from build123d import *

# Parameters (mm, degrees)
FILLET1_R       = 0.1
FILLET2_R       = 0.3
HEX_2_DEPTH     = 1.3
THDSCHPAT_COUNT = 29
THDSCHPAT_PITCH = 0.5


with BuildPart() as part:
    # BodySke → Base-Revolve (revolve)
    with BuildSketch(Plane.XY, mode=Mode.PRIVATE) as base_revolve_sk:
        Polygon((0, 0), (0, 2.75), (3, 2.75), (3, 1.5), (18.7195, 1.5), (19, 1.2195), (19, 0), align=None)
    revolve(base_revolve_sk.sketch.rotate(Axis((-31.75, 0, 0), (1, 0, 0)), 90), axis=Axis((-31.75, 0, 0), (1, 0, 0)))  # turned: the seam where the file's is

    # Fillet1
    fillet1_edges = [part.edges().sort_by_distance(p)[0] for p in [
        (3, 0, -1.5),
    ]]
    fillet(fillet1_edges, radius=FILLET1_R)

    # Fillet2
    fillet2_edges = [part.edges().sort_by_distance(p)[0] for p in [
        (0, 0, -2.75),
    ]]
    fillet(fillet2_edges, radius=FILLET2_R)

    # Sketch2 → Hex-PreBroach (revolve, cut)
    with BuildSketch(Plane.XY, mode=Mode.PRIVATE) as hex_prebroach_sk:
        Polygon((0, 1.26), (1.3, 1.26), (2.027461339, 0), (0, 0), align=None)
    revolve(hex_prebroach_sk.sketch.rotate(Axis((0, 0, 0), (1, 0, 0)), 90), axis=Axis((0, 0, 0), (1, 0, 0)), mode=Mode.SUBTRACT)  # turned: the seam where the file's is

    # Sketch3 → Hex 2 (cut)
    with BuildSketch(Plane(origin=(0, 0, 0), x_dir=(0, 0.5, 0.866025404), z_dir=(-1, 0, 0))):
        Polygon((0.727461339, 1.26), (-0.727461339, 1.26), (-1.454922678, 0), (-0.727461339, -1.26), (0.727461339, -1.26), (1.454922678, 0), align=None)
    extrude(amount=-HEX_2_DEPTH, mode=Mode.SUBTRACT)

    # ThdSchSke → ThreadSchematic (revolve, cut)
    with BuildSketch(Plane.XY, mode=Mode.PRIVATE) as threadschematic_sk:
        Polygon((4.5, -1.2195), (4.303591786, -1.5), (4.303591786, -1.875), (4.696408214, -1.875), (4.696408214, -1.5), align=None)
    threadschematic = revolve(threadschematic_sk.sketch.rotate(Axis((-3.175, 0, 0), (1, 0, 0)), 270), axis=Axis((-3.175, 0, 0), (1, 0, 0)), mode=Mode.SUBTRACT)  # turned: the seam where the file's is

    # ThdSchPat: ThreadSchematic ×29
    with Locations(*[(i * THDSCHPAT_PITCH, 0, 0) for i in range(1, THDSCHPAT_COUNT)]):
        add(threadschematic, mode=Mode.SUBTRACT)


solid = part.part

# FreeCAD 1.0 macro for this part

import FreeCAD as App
import Part
import Sketcher
from FreeCAD import Vector
Q = App.Units.Quantity


def edges_at(feature, points):
    """Names of the edges that pass closest to the given points."""
    edges = feature.Shape.Edges
    near = lambda p: min(range(len(edges)), key=lambda i: edges[i].distToShape(Part.Vertex(*p))[0])
    return sorted({f"Edge{near(p) + 1}" for p in points})

doc = App.newDocument("Part")
params = doc.addObject("Spreadsheet::Sheet", "Params")
for row, (alias, value) in enumerate([
    ("sketch1_width", "19 mm"),
    ("sketch1_width2", "3 mm"),
    ("sketch1_height", "2.75 mm"),
    ("sketch1_height2", "1.25 mm"),
    ("revolution_angle", "360 deg"),
    ("fillet_radius", "0.1 mm"),
    ("fillet2_radius", "0.3 mm"),
    ("sketch2_width", "1.3 mm"),
    ("sketch2_height", "1.26 mm"),
    ("groove_angle", "360 deg"),
    ("pocket1_length", "1.3 mm"),
    ("groove2_angle", "360 deg"),
    ("linearpattern_pitch", "0.5 mm"),
], start=1):
    params.set(f"A{row}", alias)
    params.set(f"B{row}", "=" + value)
    params.setAlias(f"B{row}", alias)

body = doc.addObject("PartDesign::Body", "Body")

# Sketch on XY plane
sketch1 = body.newObject("Sketcher::SketchObject", "Sketch")
sketch1.AttachmentSupport = (doc.getObject("XY_Plane"), [""])
sketch1.MapMode = "FlatFace"
sketch1.addGeometry([
    Part.LineSegment(Vector(0, 2.75, 0), Vector(0, 0, 0)),  # 0
    Part.LineSegment(Vector(0, 0, 0), Vector(19, 0, 0)),  # 1
    Part.LineSegment(Vector(19, 0, 0), Vector(19, 1.22, 0)),  # 2
    Part.LineSegment(Vector(19, 1.22, 0), Vector(18.72, 1.5, 0)),  # 3
    Part.LineSegment(Vector(18.72, 1.5, 0), Vector(3, 1.5, 0)),  # 4
    Part.LineSegment(Vector(3, 1.5, 0), Vector(3, 2.75, 0)),  # 5
    Part.LineSegment(Vector(3, 2.75, 0), Vector(0, 2.75, 0)),  # 6
], False)
sketch1.addConstraint([
    Sketcher.Constraint("Coincident", 0, 2, 1, 1),
    Sketcher.Constraint("Coincident", 1, 2, 2, 1),
    Sketcher.Constraint("Coincident", 2, 2, 3, 1),
    Sketcher.Constraint("Coincident", 3, 2, 4, 1),
    Sketcher.Constraint("Coincident", 4, 2, 5, 1),
    Sketcher.Constraint("Coincident", 5, 2, 6, 1),
    Sketcher.Constraint("Coincident", 6, 2, 0, 1),
    Sketcher.Constraint("Vertical", 0),
    Sketcher.Constraint("Horizontal", 1),
    Sketcher.Constraint("Vertical", 2),
    Sketcher.Constraint("Horizontal", 4),
    Sketcher.Constraint("Vertical", 5),
    Sketcher.Constraint("Horizontal", 6),
    Sketcher.Constraint("Coincident", 0, 2, -1, 1),
    Sketcher.Constraint("DistanceX", 1, 1, 1, 2, 19.0),
    Sketcher.Constraint("DistanceX", 6, 2, 6, 1, 3.0),
    Sketcher.Constraint("Angle", 3, Q("135 deg")),
    Sketcher.Constraint("DistanceY", 0, 2, 0, 1, 2.75),
    Sketcher.Constraint("DistanceY", 5, 1, 5, 2, 1.25),
    Sketcher.Constraint("DistanceX", 4, 2, 4, 1, 15.7195),
])
sketch1.setExpression("Constraints[14]", "Params.sketch1_width")
sketch1.setExpression("Constraints[15]", "Params.sketch1_width2")
sketch1.setExpression("Constraints[17]", "Params.sketch1_height")
sketch1.setExpression("Constraints[18]", "Params.sketch1_height2")
revolution = body.newObject("PartDesign::Revolution", "Revolution")
revolution.Profile = sketch1
revolution.ReferenceAxis = (sketch1, ["H_Axis"])
revolution.setExpression("Angle", "Params.revolution_angle")
doc.recompute()

fillet = body.newObject("PartDesign::Fillet", "Fillet")
fillet.Base = (revolution, edges_at(revolution, [(3, 0, -1.5)]))
fillet.setExpression("Radius", "Params.fillet_radius")
doc.recompute()

fillet2 = body.newObject("PartDesign::Fillet", "Fillet001")
fillet2.Base = (fillet, edges_at(fillet, [(0, 0, -2.75)]))
fillet2.setExpression("Radius", "Params.fillet2_radius")

# Sketch on XY plane
sketch2 = body.newObject("Sketcher::SketchObject", "Sketch001")
sketch2.AttachmentSupport = (doc.getObject("XY_Plane"), [""])
sketch2.MapMode = "FlatFace"
sketch2.addGeometry([
    Part.LineSegment(Vector(1.3, 1.3, 0), Vector(0, 1.3, 0)),
    Part.LineSegment(Vector(0, 1.3, 0), Vector(0, 0, 0)),
    Part.LineSegment(Vector(0, 0, 0), Vector(2, 0, 0)),
    Part.LineSegment(Vector(2, 0, 0), Vector(1.3, 1.3, 0)),
], False)
sketch2.addConstraint([
    Sketcher.Constraint("Coincident", 0, 2, 1, 1),
    Sketcher.Constraint("Coincident", 1, 2, 2, 1),
    Sketcher.Constraint("Coincident", 2, 2, 3, 1),
    Sketcher.Constraint("Coincident", 3, 2, 0, 1),
    Sketcher.Constraint("Horizontal", 0),
    Sketcher.Constraint("Vertical", 1),
    Sketcher.Constraint("Horizontal", 2),
    Sketcher.Constraint("Coincident", 1, 2, -1, 1),
    Sketcher.Constraint("Angle", 3, Q("120 deg")),
    Sketcher.Constraint("DistanceX", 0, 2, 0, 1, 1.3),
    Sketcher.Constraint("DistanceY", 1, 2, 1, 1, 1.26),
])
sketch2.setExpression("Constraints[9]", "Params.sketch2_width")
sketch2.setExpression("Constraints[10]", "Params.sketch2_height")
groove = body.newObject("PartDesign::Groove", "Groove")
groove.Profile = sketch2
groove.ReferenceAxis = (sketch2, ["H_Axis"])
groove.setExpression("Angle", "Params.groove_angle")

# Sketch on YZ plane
sketch3 = body.newObject("Sketcher::SketchObject", "Sketch002")
sketch3.AttachmentSupport = (doc.getObject("YZ_Plane"), [""])
sketch3.MapMode = "FlatFace"
sketch3.addGeometry([
    Part.LineSegment(Vector(1.5, 0, 0), Vector(0.7, -1.3, 0)),  # 0
    Part.LineSegment(Vector(0.7, -1.3, 0), Vector(-0.7, -1.3, 0)),  # 1
    Part.LineSegment(Vector(-0.7, -1.3, 0), Vector(-1.5, 0, 0)),  # 2
    Part.LineSegment(Vector(-1.5, 0, 0), Vector(-0.7, 1.3, 0)),  # 3
    Part.LineSegment(Vector(-0.7, 1.3, 0), Vector(0.7, 1.3, 0)),  # 4
    Part.LineSegment(Vector(0.7, 1.3, 0), Vector(1.5, 0, 0)),  # 5
], False)
sketch3.addConstraint([
    Sketcher.Constraint("Coincident", 0, 2, 1, 1),
    Sketcher.Constraint("Coincident", 1, 2, 2, 1),
    Sketcher.Constraint("Coincident", 2, 2, 3, 1),
    Sketcher.Constraint("Coincident", 3, 2, 4, 1),
    Sketcher.Constraint("Coincident", 4, 2, 5, 1),
    Sketcher.Constraint("Coincident", 5, 2, 0, 1),
    Sketcher.Constraint("Horizontal", 1),
    Sketcher.Constraint("Horizontal", 4),
    Sketcher.Constraint("Symmetric", 0, 2, 3, 2, -1, 1),
    Sketcher.Constraint("Symmetric", 2, 2, 5, 2, -1, 1),
    Sketcher.Constraint("PointOnObject", 2, 2, -1),
    Sketcher.Constraint("Parallel", 2, 5),
    Sketcher.Constraint("Vertical", 1, 2, 3, 2),
    Sketcher.Constraint("Angle", 0, Q("-120 deg")),
    Sketcher.Constraint("DistanceY", 0, 2, -1, 1, 1.26),
    Sketcher.Constraint("DistanceX", 1, 2, 1, 1, 1.454923),
])
pocket1 = body.newObject("PartDesign::Pocket", "Pocket")
pocket1.Profile = sketch3
pocket1.setExpression("Length", "Params.pocket1_length")
pocket1.Reversed = True

# Sketch on XY plane
sketch4 = body.newObject("Sketcher::SketchObject", "Sketch003")
sketch4.AttachmentSupport = (doc.getObject("XY_Plane"), [""])
sketch4.MapMode = "FlatFace"
sketch4.addGeometry([
    Part.LineSegment(Vector(4.5, -1.22, 0), Vector(4.3, -1.5, 0)),  # 0
    Part.LineSegment(Vector(4.3, -1.5, 0), Vector(4.3, -1.88, 0)),  # 1
    Part.LineSegment(Vector(4.3, -1.88, 0), Vector(4.7, -1.88, 0)),  # 2
    Part.LineSegment(Vector(4.7, -1.88, 0), Vector(4.7, -1.5, 0)),  # 3
    Part.LineSegment(Vector(4.7, -1.5, 0), Vector(4.5, -1.22, 0)),  # 4
], False)
sketch4.addConstraint([
    Sketcher.Constraint("Coincident", 0, 2, 1, 1),
    Sketcher.Constraint("Coincident", 1, 2, 2, 1),
    Sketcher.Constraint("Coincident", 2, 2, 3, 1),
    Sketcher.Constraint("Coincident", 3, 2, 4, 1),
    Sketcher.Constraint("Coincident", 4, 2, 0, 1),
    Sketcher.Constraint("Vertical", 1),
    Sketcher.Constraint("Horizontal", 2),
    Sketcher.Constraint("Vertical", 3),
    Sketcher.Constraint("Horizontal", 0, 2, 3, 2),
    Sketcher.Constraint("Equal", 0, 4),
    Sketcher.Constraint("Angle", 0, Q("-125 deg")),
    Sketcher.Constraint("DistanceY", 0, 2, -1, 1, 1.5),
    Sketcher.Constraint("DistanceX", -1, 1, 4, 2, 4.5),
    Sketcher.Constraint("DistanceY", 1, 2, 1, 1, 0.375),
    Sketcher.Constraint("DistanceY", 4, 2, -1, 1, 1.2195),
])
groove2 = body.newObject("PartDesign::Groove", "Groove001")
groove2.Profile = sketch4
groove2.ReferenceAxis = (sketch4, ["H_Axis"])
groove2.setExpression("Angle", "Params.groove2_angle")
doc.recompute()

linearpattern = body.newObject("PartDesign::LinearPattern", "LinearPattern")
linearpattern.Originals = [groove2]
linearpattern.Direction = (doc.getObject("X_Axis"), [""])
linearpattern.Mode = "offset"
linearpattern.setExpression("Offset", "Params.linearpattern_pitch")
linearpattern.Occurrences = 29
body.Tip = linearpattern

doc.recompute()
